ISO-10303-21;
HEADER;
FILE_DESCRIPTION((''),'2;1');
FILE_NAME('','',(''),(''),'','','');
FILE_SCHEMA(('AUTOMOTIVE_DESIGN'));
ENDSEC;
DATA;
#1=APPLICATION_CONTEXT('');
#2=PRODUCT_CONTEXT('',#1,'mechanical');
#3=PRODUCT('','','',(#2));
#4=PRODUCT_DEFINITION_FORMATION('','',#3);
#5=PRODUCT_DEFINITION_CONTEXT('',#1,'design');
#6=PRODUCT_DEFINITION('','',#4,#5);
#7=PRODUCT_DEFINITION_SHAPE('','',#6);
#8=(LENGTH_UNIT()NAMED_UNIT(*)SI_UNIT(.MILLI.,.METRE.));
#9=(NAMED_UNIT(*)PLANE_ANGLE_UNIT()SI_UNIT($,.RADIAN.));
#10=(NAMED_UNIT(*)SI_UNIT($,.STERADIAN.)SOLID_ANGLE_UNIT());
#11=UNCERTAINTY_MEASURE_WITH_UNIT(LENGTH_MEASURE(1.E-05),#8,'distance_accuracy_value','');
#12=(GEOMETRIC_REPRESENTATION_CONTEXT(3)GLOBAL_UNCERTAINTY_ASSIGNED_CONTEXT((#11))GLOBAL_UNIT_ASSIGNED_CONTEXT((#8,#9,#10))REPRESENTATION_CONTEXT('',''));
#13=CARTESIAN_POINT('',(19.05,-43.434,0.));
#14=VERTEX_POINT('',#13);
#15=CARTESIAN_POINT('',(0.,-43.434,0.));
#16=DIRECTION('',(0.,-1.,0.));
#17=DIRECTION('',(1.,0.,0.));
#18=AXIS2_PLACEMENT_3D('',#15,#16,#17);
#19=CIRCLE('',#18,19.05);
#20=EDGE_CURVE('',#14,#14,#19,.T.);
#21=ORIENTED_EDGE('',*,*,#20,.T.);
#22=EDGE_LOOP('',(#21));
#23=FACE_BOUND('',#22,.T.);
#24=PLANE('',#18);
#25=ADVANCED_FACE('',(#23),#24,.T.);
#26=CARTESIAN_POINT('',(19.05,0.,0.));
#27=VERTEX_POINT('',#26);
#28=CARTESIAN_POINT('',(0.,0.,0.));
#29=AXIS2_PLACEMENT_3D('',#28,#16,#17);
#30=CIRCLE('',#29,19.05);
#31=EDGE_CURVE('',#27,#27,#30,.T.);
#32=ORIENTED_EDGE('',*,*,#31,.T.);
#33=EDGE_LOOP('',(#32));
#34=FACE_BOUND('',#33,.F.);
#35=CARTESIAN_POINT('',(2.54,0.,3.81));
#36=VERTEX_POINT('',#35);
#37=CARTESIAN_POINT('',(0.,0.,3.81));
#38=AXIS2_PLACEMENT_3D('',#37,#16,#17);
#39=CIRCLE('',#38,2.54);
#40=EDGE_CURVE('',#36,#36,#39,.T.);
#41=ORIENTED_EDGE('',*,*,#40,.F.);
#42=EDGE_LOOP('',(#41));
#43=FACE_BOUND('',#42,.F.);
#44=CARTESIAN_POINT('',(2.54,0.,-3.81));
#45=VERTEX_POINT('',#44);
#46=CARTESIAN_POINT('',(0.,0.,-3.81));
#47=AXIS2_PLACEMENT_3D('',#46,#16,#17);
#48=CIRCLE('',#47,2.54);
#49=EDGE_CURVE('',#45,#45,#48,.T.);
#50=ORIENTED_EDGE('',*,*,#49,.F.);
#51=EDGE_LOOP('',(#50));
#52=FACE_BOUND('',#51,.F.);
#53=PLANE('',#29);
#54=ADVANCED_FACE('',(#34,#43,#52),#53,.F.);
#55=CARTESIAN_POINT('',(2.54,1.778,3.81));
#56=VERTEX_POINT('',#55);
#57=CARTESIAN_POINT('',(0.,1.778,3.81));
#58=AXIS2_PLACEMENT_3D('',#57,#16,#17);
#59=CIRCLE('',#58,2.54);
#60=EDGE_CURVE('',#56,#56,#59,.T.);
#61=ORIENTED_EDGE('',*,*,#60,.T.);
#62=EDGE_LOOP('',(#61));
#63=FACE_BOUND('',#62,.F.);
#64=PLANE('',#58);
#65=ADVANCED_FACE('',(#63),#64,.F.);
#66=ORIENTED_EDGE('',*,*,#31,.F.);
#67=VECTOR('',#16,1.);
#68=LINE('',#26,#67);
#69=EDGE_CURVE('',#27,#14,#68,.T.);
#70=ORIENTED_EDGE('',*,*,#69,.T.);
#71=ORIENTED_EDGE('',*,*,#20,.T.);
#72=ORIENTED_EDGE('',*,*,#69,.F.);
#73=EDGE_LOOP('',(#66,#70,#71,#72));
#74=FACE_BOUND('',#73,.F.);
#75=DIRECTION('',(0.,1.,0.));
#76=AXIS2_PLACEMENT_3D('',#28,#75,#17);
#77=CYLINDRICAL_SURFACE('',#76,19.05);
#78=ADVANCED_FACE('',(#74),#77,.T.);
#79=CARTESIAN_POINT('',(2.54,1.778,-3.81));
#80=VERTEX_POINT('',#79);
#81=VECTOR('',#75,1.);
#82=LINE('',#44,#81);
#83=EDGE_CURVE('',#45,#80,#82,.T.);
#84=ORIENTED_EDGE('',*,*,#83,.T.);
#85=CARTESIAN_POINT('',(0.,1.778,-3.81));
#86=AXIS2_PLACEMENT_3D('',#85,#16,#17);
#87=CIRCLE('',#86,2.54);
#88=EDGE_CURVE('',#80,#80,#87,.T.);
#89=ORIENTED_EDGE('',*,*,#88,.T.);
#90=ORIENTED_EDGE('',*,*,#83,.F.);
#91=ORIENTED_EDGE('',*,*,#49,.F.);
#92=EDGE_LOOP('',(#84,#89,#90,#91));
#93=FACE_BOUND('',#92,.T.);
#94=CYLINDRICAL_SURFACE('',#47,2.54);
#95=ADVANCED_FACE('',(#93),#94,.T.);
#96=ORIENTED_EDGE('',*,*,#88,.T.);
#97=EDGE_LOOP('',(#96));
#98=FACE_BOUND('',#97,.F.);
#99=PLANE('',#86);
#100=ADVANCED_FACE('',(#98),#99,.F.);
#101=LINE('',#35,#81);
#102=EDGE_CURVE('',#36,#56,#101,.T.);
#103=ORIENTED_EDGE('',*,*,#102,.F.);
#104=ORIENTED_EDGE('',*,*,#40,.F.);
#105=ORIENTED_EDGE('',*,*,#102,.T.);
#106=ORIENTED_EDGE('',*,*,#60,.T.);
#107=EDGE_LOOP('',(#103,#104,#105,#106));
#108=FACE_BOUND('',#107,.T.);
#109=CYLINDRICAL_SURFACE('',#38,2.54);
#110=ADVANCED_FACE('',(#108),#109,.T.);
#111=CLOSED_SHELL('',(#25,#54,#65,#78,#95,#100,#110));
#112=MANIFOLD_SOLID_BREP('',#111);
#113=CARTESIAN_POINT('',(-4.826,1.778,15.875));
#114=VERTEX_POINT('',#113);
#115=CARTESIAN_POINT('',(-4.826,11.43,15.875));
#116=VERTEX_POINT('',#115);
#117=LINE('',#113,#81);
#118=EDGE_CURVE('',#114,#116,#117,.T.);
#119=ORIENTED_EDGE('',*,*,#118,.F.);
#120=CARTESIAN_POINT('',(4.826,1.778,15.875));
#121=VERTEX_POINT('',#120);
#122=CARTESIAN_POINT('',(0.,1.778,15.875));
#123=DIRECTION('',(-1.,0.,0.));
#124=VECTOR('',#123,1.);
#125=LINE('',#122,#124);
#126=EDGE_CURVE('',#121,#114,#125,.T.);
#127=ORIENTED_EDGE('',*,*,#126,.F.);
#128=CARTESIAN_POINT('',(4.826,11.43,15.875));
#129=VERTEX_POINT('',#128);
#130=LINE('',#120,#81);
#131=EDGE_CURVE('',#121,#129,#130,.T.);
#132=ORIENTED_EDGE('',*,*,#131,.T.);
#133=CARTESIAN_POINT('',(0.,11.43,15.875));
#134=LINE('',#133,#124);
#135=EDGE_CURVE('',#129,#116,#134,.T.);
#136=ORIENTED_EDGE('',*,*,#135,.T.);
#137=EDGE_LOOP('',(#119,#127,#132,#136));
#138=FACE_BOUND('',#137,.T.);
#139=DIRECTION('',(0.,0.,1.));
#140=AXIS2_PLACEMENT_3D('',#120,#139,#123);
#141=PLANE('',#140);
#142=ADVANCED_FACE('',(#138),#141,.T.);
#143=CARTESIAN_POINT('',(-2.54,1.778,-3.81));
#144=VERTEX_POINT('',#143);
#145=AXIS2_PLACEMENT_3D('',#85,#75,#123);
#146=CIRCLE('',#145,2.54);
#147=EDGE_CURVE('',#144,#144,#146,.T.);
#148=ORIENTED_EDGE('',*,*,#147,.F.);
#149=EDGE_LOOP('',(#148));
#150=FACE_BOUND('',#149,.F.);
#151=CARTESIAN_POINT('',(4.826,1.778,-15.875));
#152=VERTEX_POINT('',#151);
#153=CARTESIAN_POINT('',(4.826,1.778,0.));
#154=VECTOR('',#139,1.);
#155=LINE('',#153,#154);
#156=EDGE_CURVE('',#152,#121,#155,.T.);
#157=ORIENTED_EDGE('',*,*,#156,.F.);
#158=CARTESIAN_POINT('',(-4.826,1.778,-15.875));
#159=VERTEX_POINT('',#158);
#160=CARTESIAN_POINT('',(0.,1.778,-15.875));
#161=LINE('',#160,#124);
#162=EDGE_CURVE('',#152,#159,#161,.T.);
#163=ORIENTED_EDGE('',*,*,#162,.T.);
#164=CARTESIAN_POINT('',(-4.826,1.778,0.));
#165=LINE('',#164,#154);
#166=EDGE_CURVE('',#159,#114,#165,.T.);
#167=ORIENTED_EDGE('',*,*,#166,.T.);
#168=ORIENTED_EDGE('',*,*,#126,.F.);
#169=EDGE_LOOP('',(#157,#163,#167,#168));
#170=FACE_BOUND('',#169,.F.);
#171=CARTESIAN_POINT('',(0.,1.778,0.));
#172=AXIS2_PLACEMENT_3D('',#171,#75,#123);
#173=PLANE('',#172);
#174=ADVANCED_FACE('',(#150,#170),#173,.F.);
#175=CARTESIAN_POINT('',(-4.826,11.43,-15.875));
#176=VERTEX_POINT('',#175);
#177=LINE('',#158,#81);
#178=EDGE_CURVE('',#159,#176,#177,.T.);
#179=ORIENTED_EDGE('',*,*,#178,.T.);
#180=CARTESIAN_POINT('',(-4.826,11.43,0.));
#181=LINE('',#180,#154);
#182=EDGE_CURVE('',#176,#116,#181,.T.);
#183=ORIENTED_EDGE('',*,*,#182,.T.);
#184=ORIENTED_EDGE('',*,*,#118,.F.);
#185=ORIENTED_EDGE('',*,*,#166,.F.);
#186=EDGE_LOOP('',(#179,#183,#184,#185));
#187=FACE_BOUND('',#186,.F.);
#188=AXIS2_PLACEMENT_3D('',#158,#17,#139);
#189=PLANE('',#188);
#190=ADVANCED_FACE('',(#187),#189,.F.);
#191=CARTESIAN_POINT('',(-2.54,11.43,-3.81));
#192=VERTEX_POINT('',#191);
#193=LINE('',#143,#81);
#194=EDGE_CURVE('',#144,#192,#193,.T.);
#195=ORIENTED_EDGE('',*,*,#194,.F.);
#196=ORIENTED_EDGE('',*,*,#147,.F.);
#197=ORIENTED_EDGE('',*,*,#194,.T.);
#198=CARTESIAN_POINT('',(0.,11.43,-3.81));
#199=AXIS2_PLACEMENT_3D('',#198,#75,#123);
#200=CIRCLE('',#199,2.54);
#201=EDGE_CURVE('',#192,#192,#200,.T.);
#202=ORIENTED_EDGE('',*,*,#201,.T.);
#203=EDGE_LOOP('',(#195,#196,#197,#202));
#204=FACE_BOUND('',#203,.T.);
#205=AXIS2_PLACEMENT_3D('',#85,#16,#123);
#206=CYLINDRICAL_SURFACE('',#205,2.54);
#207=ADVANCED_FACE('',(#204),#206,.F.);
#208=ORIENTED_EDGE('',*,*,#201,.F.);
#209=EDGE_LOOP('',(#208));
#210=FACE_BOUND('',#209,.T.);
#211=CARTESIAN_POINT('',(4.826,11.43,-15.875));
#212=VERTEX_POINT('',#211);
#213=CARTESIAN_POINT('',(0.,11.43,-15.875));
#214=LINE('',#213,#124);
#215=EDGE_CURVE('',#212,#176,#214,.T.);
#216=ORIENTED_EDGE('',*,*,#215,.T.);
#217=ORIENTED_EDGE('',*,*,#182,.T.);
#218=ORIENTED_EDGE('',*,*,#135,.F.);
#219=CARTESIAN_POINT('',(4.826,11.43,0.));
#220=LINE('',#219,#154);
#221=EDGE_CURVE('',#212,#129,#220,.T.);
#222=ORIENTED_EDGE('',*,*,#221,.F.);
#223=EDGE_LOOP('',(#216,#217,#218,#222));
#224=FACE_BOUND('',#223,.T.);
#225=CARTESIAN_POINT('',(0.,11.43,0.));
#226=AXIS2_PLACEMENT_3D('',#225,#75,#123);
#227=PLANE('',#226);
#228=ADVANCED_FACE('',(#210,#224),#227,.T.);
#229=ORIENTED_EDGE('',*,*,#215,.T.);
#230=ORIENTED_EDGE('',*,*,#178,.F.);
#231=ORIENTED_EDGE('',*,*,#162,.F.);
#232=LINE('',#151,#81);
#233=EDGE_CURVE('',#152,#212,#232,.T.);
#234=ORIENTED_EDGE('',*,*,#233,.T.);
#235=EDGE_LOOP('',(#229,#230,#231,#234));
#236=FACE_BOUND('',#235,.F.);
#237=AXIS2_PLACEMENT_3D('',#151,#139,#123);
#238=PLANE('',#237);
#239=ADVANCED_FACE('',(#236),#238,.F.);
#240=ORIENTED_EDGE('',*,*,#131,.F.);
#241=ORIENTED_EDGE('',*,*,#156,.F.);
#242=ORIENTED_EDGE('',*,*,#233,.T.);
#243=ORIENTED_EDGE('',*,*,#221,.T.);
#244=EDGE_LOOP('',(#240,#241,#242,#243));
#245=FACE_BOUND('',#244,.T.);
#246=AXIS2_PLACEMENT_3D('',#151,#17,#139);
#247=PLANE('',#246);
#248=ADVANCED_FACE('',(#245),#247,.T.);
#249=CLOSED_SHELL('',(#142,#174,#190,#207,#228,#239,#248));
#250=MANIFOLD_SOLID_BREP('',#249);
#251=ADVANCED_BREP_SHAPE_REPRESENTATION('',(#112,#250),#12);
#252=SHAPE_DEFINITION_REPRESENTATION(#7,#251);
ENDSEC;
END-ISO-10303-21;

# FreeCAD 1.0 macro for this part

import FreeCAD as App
import Part
import Sketcher
Q = App.Units.Quantity

doc = App.newDocument("Part")
params = doc.addObject("Spreadsheet::Sheet", "Params")
for row, (alias, value) in enumerate([
    ("sketch1_diameter", "1.5 in"),
    ("pad1_length", "1.71 in"),
    ("sketch2_diameter", "0.2 in"),
    ("pad2_length", "0.07 in"),
    ("sketch3_diameter", "0.2 in"),
    ("sketch3_width", "0.38 in"),
    ("sketch3_height", "1.25 in"),
    ("pad3_length", "0.38 in"),
], start=1):
    params.set(f"A{row}", alias)
    params.set(f"B{row}", "=" + value)
    params.setAlias(f"B{row}", alias)

body = doc.addObject("PartDesign::Body", "Body")

sketch1 = body.newObject("Sketcher::SketchObject", "Sketch")
sketch1.AttachmentSupport = (doc.getObject("XZ_Plane"), [""])
sketch1.MapMode = "FlatFace"
sketch1.addGeometry(Part.Circle(App.Vector(0, 0, 0), App.Vector(0, 0, 1), 19.05), False)
sketch1.addConstraint(Sketcher.Constraint("Coincident", 0, 3, -1, 1))
sketch1.addConstraint(Sketcher.Constraint("Diameter", 0, Q("1.5 in")))
sketch1.setExpression("Constraints[1]", "Params.sketch1_diameter")
pad1 = body.newObject("PartDesign::Pad", "Pad")
pad1.Profile = sketch1
pad1.setExpression("Length", "Params.pad1_length")

sketch2 = body.newObject("Sketcher::SketchObject", "Sketch001")
sketch2.AttachmentSupport = (doc.getObject("XZ_Plane"), [""])
sketch2.MapMode = "FlatFace"
sketch2.addGeometry(Part.Circle(App.Vector(0, -3.81, 0), App.Vector(0, 0, 1), 2.54), False)
sketch2.addGeometry(Part.Circle(App.Vector(0, 3.81, 0), App.Vector(0, 0, 1), 2.54), False)
sketch2.addConstraint(Sketcher.Constraint("Equal", 0, 1))
sketch2.addConstraint(Sketcher.Constraint("Symmetric", 0, 3, 1, 3, -1, 1))
sketch2.addConstraint(Sketcher.Constraint("PointOnObject", 0, 3, -2))
sketch2.addConstraint(Sketcher.Constraint("Diameter", 0, Q("0.2 in")))
sketch2.addConstraint(Sketcher.Constraint("DistanceY", 0, 3, 1, 3, Q("0.3 in")))
sketch2.setExpression("Constraints[3]", "Params.sketch2_diameter")
pad2 = body.newObject("PartDesign::Pad", "Pad001")
pad2.Profile = sketch2
pad2.setExpression("Length", "Params.pad2_length")
pad2.Reversed = True
body2 = doc.addObject("PartDesign::Body", "Body001")

sketch3 = body2.newObject("Sketcher::SketchObject", "Sketch002")
sketch3.AttachmentSupport = (doc.getObject("XZ_Plane001"), [""])
sketch3.MapMode = "FlatFace"
sketch3.AttachmentOffset = App.Placement(App.Vector(0, 0, -0.07 * 25.4), App.Rotation())
sketch3.addGeometry(Part.LineSegment(App.Vector(4.826, 15.875, 0), App.Vector(4.826, -15.875, 0)), False)
sketch3.addGeometry(Part.LineSegment(App.Vector(4.826, -15.875, 0), App.Vector(-4.826, -15.875, 0)), False)
sketch3.addGeometry(Part.LineSegment(App.Vector(-4.826, -15.875, 0), App.Vector(-4.826, 15.875, 0)), False)
sketch3.addGeometry(Part.LineSegment(App.Vector(-4.826, 15.875, 0), App.Vector(4.826, 15.875, 0)), False)
sketch3.addGeometry(Part.Circle(App.Vector(0, -3.81, 0), App.Vector(0, 0, 1), 2.54), False)
sketch3.addConstraint(Sketcher.Constraint("Coincident", 0, 2, 1, 1))
sketch3.addConstraint(Sketcher.Constraint("Coincident", 1, 2, 2, 1))
sketch3.addConstraint(Sketcher.Constraint("Coincident", 2, 2, 3, 1))
sketch3.addConstraint(Sketcher.Constraint("Coincident", 3, 2, 0, 1))
sketch3.addConstraint(Sketcher.Constraint("Vertical", 0))
sketch3.addConstraint(Sketcher.Constraint("Horizontal", 1))
sketch3.addConstraint(Sketcher.Constraint("Vertical", 2))
sketch3.addConstraint(Sketcher.Constraint("Horizontal", 3))
sketch3.addConstraint(Sketcher.Constraint("Symmetric", 0, 2, 2, 2, -1, 1))
sketch3.addConstraint(Sketcher.Constraint("PointOnObject", 4, 3, -2))
sketch3.addConstraint(Sketcher.Constraint("Diameter", 4, Q("0.2 in")))
sketch3.addConstraint(Sketcher.Constraint("DistanceX", 1, 2, 1, 1, Q("0.38 in")))
sketch3.addConstraint(Sketcher.Constraint("DistanceY", 0, 2, 0, 1, Q("1.25 in")))
sketch3.addConstraint(Sketcher.Constraint("DistanceY", 4, 3, -1, 1, Q("0.15 in")))
sketch3.setExpression("Constraints[10]", "Params.sketch3_diameter")
sketch3.setExpression("Constraints[11]", "Params.sketch3_width")
sketch3.setExpression("Constraints[12]", "Params.sketch3_height")
pad3 = body2.newObject("PartDesign::Pad", "Pad002")
pad3.Profile = sketch3
pad3.setExpression("Length", "Params.pad3_length")
pad3.Reversed = True

doc.recompute()
